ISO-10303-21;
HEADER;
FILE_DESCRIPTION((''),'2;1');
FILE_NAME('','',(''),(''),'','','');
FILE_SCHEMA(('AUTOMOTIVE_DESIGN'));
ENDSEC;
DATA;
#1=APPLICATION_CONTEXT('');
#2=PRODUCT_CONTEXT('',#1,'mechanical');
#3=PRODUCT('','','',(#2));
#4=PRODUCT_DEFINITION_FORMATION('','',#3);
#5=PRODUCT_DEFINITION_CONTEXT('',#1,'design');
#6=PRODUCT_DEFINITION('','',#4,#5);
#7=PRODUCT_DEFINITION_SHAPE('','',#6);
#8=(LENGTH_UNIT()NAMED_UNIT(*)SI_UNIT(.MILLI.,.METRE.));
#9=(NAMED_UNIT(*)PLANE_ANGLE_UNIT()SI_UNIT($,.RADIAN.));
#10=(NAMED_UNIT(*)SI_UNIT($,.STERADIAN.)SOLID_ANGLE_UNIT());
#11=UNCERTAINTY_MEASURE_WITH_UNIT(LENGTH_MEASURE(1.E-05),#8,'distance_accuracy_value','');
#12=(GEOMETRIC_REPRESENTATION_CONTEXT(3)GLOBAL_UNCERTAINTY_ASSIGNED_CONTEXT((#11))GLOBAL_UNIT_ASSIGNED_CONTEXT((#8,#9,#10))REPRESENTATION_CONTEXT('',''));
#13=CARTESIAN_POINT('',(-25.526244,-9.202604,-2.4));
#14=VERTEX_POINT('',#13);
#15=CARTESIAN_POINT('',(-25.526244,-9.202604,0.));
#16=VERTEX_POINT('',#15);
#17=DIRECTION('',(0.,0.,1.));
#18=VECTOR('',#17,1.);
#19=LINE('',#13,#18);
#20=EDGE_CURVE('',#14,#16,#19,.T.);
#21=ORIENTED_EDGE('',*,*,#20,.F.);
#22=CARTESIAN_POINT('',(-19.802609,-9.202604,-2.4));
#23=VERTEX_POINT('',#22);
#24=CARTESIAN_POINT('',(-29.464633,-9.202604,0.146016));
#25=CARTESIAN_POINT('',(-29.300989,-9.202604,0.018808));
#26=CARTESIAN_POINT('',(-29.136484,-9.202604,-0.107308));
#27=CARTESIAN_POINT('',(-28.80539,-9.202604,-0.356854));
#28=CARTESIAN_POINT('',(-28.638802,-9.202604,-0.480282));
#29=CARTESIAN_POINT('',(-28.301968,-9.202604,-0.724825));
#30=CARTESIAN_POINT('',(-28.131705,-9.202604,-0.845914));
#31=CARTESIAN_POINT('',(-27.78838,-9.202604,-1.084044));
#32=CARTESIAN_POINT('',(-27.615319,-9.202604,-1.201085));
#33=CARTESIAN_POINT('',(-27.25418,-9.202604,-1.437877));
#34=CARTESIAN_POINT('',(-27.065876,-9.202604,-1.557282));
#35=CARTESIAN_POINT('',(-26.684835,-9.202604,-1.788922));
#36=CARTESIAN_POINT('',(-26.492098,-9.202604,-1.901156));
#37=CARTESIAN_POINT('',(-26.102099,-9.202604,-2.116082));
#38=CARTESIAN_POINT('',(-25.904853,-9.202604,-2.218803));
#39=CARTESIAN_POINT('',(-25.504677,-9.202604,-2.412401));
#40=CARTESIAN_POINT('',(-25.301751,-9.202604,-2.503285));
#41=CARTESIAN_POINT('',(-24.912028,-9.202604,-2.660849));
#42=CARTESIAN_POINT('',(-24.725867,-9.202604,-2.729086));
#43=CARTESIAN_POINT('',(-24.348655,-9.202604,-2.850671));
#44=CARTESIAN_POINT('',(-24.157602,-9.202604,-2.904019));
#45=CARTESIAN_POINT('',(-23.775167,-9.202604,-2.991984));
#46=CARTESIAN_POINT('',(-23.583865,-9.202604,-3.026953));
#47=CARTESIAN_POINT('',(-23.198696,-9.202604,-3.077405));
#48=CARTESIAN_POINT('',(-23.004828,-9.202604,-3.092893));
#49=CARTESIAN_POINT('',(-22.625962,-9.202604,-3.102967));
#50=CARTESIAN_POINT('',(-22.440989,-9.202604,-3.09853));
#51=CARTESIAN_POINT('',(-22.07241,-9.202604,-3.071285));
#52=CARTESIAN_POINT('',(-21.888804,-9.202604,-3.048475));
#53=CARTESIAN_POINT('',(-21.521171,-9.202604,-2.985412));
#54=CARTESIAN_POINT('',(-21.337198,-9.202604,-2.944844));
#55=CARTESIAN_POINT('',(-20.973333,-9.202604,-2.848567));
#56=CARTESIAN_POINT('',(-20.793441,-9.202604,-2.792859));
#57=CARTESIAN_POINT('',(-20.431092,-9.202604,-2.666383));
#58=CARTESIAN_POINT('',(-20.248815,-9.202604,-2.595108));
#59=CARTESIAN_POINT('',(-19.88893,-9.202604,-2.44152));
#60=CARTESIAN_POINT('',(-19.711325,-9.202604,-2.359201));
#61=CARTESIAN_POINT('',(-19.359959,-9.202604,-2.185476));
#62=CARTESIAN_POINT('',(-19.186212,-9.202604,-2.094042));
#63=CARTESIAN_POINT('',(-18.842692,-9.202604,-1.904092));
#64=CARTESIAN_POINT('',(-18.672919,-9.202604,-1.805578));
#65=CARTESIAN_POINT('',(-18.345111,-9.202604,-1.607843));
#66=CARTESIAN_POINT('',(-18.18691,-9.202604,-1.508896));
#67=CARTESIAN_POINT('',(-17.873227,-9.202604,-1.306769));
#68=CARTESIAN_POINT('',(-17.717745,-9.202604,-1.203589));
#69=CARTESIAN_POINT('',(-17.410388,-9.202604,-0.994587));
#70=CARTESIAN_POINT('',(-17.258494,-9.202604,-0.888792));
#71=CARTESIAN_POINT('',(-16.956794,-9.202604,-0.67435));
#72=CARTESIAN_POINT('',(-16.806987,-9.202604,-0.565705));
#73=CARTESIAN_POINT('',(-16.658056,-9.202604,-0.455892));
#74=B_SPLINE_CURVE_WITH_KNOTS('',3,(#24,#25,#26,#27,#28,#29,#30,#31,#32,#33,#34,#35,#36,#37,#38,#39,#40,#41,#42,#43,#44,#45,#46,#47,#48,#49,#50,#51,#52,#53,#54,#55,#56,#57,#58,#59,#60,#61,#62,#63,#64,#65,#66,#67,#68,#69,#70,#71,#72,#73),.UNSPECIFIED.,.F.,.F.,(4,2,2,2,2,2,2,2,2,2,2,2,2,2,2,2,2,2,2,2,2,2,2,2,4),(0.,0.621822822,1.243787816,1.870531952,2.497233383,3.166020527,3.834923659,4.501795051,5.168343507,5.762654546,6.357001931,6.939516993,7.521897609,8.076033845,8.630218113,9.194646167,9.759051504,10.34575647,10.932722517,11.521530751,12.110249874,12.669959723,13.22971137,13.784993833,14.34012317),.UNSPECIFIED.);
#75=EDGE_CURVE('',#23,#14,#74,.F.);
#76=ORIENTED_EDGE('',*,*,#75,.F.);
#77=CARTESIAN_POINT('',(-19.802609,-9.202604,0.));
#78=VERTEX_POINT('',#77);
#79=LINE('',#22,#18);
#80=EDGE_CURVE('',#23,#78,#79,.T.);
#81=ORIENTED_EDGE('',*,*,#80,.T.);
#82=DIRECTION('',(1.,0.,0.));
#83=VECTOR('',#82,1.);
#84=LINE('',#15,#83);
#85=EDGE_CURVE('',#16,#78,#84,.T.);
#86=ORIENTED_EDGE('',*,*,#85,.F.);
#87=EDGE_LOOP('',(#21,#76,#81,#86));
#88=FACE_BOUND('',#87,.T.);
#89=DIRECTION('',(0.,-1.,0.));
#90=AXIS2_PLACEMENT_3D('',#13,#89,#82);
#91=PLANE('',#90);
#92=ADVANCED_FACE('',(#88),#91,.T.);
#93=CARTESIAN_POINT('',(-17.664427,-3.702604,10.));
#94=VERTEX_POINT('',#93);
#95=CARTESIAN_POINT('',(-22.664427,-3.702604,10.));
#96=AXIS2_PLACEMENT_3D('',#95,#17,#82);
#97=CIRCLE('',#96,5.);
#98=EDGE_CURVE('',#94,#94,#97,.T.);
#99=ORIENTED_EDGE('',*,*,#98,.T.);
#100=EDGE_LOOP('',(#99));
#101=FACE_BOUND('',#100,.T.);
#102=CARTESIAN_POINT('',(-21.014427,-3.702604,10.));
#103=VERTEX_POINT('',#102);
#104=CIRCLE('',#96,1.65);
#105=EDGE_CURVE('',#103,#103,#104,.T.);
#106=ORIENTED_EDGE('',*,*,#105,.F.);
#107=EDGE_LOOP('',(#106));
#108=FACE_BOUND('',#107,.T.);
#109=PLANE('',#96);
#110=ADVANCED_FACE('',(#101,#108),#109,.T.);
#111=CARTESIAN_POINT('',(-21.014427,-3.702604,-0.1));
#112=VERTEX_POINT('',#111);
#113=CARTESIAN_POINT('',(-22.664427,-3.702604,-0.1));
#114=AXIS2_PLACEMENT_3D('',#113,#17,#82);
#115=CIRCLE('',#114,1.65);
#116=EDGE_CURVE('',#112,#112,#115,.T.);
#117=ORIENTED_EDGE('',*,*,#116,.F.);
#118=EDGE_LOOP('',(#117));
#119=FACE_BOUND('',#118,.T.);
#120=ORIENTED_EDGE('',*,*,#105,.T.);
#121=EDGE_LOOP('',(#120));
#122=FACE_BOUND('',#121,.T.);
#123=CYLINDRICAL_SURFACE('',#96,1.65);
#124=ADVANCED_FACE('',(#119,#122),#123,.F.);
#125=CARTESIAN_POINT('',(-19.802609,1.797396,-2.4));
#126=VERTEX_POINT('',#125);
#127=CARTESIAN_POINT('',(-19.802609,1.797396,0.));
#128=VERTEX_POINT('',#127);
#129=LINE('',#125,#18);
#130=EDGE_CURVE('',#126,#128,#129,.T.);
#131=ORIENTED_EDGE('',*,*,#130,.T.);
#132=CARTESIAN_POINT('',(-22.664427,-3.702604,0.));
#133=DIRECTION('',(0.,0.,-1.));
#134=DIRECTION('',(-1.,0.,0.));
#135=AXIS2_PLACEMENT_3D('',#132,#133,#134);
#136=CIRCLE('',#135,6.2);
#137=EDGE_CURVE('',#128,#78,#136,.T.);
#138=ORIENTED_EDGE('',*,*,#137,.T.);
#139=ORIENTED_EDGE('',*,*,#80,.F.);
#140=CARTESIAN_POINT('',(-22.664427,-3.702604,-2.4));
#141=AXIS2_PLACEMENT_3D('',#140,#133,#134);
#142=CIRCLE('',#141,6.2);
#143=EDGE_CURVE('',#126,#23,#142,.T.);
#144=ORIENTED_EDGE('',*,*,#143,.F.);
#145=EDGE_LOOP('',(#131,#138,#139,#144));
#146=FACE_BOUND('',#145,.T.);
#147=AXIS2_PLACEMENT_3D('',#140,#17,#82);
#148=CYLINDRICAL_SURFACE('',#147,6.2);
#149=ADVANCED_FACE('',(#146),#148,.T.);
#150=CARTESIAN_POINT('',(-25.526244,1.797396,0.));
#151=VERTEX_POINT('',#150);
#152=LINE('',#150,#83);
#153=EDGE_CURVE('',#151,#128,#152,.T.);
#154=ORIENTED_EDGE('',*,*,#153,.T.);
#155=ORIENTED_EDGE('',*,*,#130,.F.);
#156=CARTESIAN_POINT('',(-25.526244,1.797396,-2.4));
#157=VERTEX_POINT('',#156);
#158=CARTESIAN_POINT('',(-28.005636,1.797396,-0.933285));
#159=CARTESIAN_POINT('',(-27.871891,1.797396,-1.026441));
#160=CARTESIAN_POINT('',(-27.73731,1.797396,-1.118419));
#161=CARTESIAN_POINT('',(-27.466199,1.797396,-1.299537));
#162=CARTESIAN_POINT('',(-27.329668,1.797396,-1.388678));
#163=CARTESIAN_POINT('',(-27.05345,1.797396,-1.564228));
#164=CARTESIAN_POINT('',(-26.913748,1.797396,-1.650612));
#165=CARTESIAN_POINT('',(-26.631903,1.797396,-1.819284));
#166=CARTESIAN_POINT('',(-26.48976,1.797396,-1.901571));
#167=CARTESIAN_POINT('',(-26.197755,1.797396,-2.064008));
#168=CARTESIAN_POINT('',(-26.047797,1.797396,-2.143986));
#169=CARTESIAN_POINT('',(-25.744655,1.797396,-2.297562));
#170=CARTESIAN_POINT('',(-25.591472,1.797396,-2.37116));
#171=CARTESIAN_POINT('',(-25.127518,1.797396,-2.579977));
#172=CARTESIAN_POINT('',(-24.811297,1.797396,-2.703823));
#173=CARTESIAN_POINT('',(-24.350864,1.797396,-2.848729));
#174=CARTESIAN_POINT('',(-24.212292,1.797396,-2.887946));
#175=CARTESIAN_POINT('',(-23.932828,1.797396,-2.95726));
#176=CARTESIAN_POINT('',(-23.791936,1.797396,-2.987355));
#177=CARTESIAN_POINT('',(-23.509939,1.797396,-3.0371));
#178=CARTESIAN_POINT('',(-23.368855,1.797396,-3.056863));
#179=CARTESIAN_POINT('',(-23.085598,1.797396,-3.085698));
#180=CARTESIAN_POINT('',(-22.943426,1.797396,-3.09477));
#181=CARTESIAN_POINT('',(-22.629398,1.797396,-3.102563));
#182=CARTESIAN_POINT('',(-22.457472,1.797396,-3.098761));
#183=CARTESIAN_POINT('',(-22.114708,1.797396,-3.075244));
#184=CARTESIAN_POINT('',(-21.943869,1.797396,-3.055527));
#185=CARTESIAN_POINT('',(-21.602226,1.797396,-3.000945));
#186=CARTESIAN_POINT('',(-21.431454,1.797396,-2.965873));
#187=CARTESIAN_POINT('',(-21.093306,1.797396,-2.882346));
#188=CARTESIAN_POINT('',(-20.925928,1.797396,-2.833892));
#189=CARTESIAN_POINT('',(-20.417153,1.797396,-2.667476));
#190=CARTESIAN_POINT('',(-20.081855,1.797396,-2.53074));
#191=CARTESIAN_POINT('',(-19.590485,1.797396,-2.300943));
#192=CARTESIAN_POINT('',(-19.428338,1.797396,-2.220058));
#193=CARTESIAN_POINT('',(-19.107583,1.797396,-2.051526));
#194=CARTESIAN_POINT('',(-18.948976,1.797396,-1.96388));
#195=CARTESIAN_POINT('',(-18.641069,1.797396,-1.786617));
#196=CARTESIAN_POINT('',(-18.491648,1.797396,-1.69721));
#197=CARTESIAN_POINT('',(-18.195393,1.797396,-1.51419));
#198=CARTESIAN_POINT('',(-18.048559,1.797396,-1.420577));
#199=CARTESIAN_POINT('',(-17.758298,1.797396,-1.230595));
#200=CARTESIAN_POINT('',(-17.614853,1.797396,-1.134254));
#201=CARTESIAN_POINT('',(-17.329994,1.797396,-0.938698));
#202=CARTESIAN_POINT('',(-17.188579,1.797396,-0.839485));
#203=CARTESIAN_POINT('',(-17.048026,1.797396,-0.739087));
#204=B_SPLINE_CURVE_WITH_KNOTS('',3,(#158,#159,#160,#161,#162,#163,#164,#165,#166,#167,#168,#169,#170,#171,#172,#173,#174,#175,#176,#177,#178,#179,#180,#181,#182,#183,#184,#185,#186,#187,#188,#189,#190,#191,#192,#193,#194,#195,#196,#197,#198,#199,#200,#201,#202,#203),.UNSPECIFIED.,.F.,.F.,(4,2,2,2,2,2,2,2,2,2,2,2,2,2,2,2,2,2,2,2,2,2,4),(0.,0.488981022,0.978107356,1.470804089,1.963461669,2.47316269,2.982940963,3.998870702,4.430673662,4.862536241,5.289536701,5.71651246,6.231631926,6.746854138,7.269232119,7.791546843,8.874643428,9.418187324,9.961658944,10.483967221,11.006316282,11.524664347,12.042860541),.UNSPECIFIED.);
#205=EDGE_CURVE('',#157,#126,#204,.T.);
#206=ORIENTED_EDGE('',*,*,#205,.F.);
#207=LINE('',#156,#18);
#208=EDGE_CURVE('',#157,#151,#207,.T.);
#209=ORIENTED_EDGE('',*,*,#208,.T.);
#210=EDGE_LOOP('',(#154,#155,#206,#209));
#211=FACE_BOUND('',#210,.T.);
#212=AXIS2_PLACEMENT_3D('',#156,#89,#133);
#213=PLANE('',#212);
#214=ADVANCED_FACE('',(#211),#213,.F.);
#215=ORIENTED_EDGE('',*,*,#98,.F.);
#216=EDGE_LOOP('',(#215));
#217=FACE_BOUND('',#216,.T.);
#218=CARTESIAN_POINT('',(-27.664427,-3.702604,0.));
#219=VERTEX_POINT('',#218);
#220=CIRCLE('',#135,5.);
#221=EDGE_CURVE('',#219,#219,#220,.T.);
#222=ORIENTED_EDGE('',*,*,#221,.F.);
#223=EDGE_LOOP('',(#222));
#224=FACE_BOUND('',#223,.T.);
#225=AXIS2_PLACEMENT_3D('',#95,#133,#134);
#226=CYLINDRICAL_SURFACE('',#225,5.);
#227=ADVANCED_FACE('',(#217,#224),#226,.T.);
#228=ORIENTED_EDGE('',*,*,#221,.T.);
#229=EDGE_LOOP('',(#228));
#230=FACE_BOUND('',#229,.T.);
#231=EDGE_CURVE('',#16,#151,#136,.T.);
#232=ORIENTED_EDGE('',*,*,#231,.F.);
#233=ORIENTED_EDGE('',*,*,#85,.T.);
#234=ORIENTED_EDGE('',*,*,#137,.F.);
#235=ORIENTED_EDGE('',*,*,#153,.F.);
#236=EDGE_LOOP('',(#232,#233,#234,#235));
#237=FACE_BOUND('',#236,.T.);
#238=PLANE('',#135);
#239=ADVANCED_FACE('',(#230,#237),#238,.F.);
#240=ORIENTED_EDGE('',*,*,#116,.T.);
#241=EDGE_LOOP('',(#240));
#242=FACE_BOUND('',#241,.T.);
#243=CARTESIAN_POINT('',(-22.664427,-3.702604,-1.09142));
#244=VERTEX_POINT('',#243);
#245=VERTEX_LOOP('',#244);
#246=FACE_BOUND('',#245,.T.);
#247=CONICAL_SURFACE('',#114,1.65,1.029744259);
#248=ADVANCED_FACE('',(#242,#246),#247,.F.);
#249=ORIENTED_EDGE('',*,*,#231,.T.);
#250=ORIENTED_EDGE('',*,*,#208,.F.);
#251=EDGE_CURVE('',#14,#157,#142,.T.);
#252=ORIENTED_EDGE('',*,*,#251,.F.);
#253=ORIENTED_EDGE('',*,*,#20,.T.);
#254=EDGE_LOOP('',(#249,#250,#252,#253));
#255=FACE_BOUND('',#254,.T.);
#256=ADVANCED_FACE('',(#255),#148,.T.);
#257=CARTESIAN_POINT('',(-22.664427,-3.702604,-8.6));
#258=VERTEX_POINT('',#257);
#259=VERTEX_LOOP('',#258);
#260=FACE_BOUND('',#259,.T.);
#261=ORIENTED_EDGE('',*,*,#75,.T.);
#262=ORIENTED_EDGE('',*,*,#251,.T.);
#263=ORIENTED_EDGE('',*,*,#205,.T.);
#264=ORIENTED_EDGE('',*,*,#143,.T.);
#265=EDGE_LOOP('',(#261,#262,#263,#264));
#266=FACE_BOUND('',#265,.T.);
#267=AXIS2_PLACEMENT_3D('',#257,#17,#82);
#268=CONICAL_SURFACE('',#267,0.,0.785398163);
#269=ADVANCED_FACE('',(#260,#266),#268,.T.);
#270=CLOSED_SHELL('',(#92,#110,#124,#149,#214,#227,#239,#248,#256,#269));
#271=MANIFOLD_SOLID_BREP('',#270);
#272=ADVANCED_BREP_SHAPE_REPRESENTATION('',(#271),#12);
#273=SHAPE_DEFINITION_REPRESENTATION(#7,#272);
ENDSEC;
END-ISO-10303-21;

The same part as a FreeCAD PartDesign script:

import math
import FreeCAD as App
import Part
import Sketcher


def add_polygon(sketch, points):
    """Adds a closed chain of lines whose ends are joined by coincident constraints."""
    first, n = sketch.GeometryCount, len(points)
    for a, b in zip(points, points[1:] + points[:1]):
        sketch.addGeometry(Part.LineSegment(App.Vector(*a, 0), App.Vector(*b, 0)), False)
    for i in range(n):
        sketch.addConstraint(Sketcher.Constraint("Coincident", first + i, 2, first + (i + 1) % n, 1))

doc = App.newDocument("Part")
body = doc.addObject("PartDesign::Body", "Body")

# Sketch on XY plane
sketch1 = doc.addObject("Sketcher::SketchObject", "Sketch")
body.addObject(sketch1)
sketch1.AttachmentSupport = (doc.XY_Plane, [""])
sketch1.MapMode = "FlatFace"
sketch1.addGeometry(Part.Circle(App.Vector(-22.664427, -3.702604, 0), App.Vector(0, 0, 1), 5), False)
sketch1.addConstraint(Sketcher.Constraint("Diameter", 0, 10.0))
sketch1.addConstraint(Sketcher.Constraint("DistanceX", 0, 3, -1, 1, 22.664427))
sketch1.addConstraint(Sketcher.Constraint("DistanceY", 0, 3, -1, 1, 3.702604))
pad1 = doc.addObject("PartDesign::Pad", "Pad")
body.addObject(pad1)
pad1.Profile = sketch1
pad1.Length = 10

# Sketch on XY plane
sketch2 = doc.addObject("Sketcher::SketchObject", "Sketch001")
body.addObject(sketch2)
sketch2.AttachmentSupport = (doc.XY_Plane, [""])
sketch2.MapMode = "FlatFace"
sketch2.addGeometry(Part.LineSegment(App.Vector(-19.802609, -9.202604, 0), App.Vector(-25.526244, -9.202604, 0)), False)
sketch2.addGeometry(Part.ArcOfCircle(Part.Circle(App.Vector(-22.664427, -3.702604, 0), App.Vector(0, 0, 1), 6.2), math.radians(117.489334), math.radians(242.510666)), False)
sketch2.addGeometry(Part.LineSegment(App.Vector(-25.526244, 1.797396, 0), App.Vector(-19.802609, 1.797396, 0)), False)
sketch2.addGeometry(Part.ArcOfCircle(Part.Circle(App.Vector(-22.664427, -3.702604, 0), App.Vector(0, 0, 1), 6.2), math.radians(-62.510666), math.radians(62.510666)), False)
sketch2.addConstraint(Sketcher.Constraint("Coincident", 0, 2, 1, 2))
sketch2.addConstraint(Sketcher.Constraint("Coincident", 1, 1, 2, 1))
sketch2.addConstraint(Sketcher.Constraint("Coincident", 2, 2, 3, 2))
sketch2.addConstraint(Sketcher.Constraint("Coincident", 3, 1, 0, 1))
sketch2.addConstraint(Sketcher.Constraint("Horizontal", 0))
sketch2.addConstraint(Sketcher.Constraint("Horizontal", 2))
sketch2.addConstraint(Sketcher.Constraint("Coincident", 3, 3, 1, 3))
sketch2.addConstraint(Sketcher.Constraint("Equal", 1, 3))
sketch2.addConstraint(Sketcher.Constraint("Vertical", 0, 2, 1, 1))
sketch2.addConstraint(Sketcher.Constraint("Radius", 1, 6.2))
sketch2.addConstraint(Sketcher.Constraint("DistanceY", 0, 2, 1, 1, 11.0))
sketch2.addConstraint(Sketcher.Constraint("DistanceX", 2, 2, -1, 1, 19.802609))
sketch2.addConstraint(Sketcher.Constraint("DistanceY", 1, 3, -1, 1, 3.702604))
pad2 = doc.addObject("PartDesign::Pad", "Pad001")
body.addObject(pad2)
pad2.Profile = sketch2
pad2.Length = 2.4
pad2.Reversed = True

# Sketch on XZ plane
sketch3 = doc.addObject("Sketcher::SketchObject", "Sketch002")
body.addObject(sketch3)
sketch3.AttachmentSupport = (doc.XZ_Plane, [""])
sketch3.MapMode = "FlatFace"
sketch3.AttachmentOffset = App.Placement(App.Vector(0, 0, 3.702604), App.Rotation())
add_polygon(sketch3, [(-22.664427, -2.4), (-16.464427, -2.4), (-22.664427, -8.6)])  # lines 0-2
sketch3.addGeometry(Part.LineSegment(App.Vector(-22.664427, -2.4, 0), App.Vector(-22.664427, -8.6, 0)), True)  # axis
sketch3.addConstraint(Sketcher.Constraint("Horizontal", 0))
sketch3.addConstraint(Sketcher.Constraint("Vertical", 2))
sketch3.addConstraint(Sketcher.Constraint("Vertical", 3))
sketch3.addConstraint(Sketcher.Constraint("Coincident", 3, 1, 2, 2))
sketch3.addConstraint(Sketcher.Constraint("Equal", 0, 2))
sketch3.addConstraint(Sketcher.Constraint("Equal", 2, 3))
sketch3.addConstraint(Sketcher.Constraint("DistanceX", 0, 1, 0, 2, 6.2))
sketch3.addConstraint(Sketcher.Constraint("DistanceY", 0, 2, -1, 1, 2.4))
sketch3.addConstraint(Sketcher.Constraint("DistanceX", 0, 2, -1, 1, 16.464427))
revolution = doc.addObject("PartDesign::Revolution", "Revolution")
body.addObject(revolution)
revolution.Profile = sketch3
revolution.ReferenceAxis = (sketch3, ["Axis0"])
revolution.Angle = 360

# Sketch on XY plane
sketch4 = doc.addObject("Sketcher::SketchObject", "Sketch003")
body.addObject(sketch4)
sketch4.AttachmentSupport = (doc.XY_Plane, [""])
sketch4.MapMode = "FlatFace"
sketch4.AttachmentOffset = App.Placement(App.Vector(0, 0, -2.4), App.Rotation())
add_polygon(sketch4, [(-25.526244, 4.788528), (-25.526244, 1.797396), (-19.497864, 1.797396), (-19.497864, 4.788528)])  # lines 0-3
sketch4.addConstraint(Sketcher.Constraint("Vertical", 0))
sketch4.addConstraint(Sketcher.Constraint("Horizontal", 1))
sketch4.addConstraint(Sketcher.Constraint("Vertical", 2))
sketch4.addConstraint(Sketcher.Constraint("Horizontal", 3))
sketch4.addConstraint(Sketcher.Constraint("DistanceX", 1, 1, 1, 2, 6.02838))
sketch4.addConstraint(Sketcher.Constraint("DistanceY", 0, 2, 0, 1, 2.991132))
sketch4.addConstraint(Sketcher.Constraint("DistanceX", 0, 2, -1, 1, 25.526244))
sketch4.addConstraint(Sketcher.Constraint("DistanceY", -1, 1, 0, 2, 1.797396))
pocket1 = doc.addObject("PartDesign::Pocket", "Pocket")
body.addObject(pocket1)
pocket1.Profile = sketch4
pocket1.Length = 2.4

# Sketch on XY plane
sketch5 = doc.addObject("Sketcher::SketchObject", "Sketch004")
body.addObject(sketch5)
sketch5.AttachmentSupport = (doc.XY_Plane, [""])
sketch5.MapMode = "FlatFace"
sketch5.AttachmentOffset = App.Placement(App.Vector(0, 0, -2.4), App.Rotation())
add_polygon(sketch5, [(-26.393404, -9.202604), (-26.393404, -10.293977), (-19.802609, -10.293977), (-19.802609, -9.202604)])  # lines 0-3
sketch5.addConstraint(Sketcher.Constraint("Vertical", 0))
sketch5.addConstraint(Sketcher.Constraint("Horizontal", 1))
sketch5.addConstraint(Sketcher.Constraint("Vertical", 2))
sketch5.addConstraint(Sketcher.Constraint("Horizontal", 3))
sketch5.addConstraint(Sketcher.Constraint("DistanceX", 1, 1, 1, 2, 6.590795))
sketch5.addConstraint(Sketcher.Constraint("DistanceY", 0, 2, 0, 1, 1.091372))
sketch5.addConstraint(Sketcher.Constraint("DistanceX", 1, 2, -1, 1, 19.802609))
sketch5.addConstraint(Sketcher.Constraint("DistanceY", 0, 2, -1, 1, 10.293977))
pocket2 = doc.addObject("PartDesign::Pocket", "Pocket001")
body.addObject(pocket2)
pocket2.Profile = sketch5
pocket2.Length = 2.4

# Sketch on XY plane
sketch6 = doc.addObject("Sketcher::SketchObject", "Sketch005")
body.addObject(sketch6)
sketch6.AttachmentSupport = (doc.XY_Plane, [""])
sketch6.MapMode = "FlatFace"
sketch6.AttachmentOffset = App.Placement(App.Vector(0, 0, 10), App.Rotation())
sketch6.addGeometry(Part.Circle(App.Vector(-22.664427, -3.702604, 0), App.Vector(0, 0, 1), 1.65), False)
sketch6.addConstraint(Sketcher.Constraint("Diameter", 0, 3.3))
sketch6.addConstraint(Sketcher.Constraint("DistanceX", 0, 3, -1, 1, 22.664427))
sketch6.addConstraint(Sketcher.Constraint("DistanceY", 0, 3, -1, 1, 3.702604))
doc.recompute()
hole = doc.addObject("PartDesign::Hole", "Hole")
body.addObject(hole)
hole.Profile = sketch6
hole.ThreadType = "None"
hole.Diameter = 3.3
hole.DepthType = "Dimension"
hole.Depth = 10.1
hole.DrillPoint = "Angled"
hole.DrillPointAngle = 118

doc.recompute()
